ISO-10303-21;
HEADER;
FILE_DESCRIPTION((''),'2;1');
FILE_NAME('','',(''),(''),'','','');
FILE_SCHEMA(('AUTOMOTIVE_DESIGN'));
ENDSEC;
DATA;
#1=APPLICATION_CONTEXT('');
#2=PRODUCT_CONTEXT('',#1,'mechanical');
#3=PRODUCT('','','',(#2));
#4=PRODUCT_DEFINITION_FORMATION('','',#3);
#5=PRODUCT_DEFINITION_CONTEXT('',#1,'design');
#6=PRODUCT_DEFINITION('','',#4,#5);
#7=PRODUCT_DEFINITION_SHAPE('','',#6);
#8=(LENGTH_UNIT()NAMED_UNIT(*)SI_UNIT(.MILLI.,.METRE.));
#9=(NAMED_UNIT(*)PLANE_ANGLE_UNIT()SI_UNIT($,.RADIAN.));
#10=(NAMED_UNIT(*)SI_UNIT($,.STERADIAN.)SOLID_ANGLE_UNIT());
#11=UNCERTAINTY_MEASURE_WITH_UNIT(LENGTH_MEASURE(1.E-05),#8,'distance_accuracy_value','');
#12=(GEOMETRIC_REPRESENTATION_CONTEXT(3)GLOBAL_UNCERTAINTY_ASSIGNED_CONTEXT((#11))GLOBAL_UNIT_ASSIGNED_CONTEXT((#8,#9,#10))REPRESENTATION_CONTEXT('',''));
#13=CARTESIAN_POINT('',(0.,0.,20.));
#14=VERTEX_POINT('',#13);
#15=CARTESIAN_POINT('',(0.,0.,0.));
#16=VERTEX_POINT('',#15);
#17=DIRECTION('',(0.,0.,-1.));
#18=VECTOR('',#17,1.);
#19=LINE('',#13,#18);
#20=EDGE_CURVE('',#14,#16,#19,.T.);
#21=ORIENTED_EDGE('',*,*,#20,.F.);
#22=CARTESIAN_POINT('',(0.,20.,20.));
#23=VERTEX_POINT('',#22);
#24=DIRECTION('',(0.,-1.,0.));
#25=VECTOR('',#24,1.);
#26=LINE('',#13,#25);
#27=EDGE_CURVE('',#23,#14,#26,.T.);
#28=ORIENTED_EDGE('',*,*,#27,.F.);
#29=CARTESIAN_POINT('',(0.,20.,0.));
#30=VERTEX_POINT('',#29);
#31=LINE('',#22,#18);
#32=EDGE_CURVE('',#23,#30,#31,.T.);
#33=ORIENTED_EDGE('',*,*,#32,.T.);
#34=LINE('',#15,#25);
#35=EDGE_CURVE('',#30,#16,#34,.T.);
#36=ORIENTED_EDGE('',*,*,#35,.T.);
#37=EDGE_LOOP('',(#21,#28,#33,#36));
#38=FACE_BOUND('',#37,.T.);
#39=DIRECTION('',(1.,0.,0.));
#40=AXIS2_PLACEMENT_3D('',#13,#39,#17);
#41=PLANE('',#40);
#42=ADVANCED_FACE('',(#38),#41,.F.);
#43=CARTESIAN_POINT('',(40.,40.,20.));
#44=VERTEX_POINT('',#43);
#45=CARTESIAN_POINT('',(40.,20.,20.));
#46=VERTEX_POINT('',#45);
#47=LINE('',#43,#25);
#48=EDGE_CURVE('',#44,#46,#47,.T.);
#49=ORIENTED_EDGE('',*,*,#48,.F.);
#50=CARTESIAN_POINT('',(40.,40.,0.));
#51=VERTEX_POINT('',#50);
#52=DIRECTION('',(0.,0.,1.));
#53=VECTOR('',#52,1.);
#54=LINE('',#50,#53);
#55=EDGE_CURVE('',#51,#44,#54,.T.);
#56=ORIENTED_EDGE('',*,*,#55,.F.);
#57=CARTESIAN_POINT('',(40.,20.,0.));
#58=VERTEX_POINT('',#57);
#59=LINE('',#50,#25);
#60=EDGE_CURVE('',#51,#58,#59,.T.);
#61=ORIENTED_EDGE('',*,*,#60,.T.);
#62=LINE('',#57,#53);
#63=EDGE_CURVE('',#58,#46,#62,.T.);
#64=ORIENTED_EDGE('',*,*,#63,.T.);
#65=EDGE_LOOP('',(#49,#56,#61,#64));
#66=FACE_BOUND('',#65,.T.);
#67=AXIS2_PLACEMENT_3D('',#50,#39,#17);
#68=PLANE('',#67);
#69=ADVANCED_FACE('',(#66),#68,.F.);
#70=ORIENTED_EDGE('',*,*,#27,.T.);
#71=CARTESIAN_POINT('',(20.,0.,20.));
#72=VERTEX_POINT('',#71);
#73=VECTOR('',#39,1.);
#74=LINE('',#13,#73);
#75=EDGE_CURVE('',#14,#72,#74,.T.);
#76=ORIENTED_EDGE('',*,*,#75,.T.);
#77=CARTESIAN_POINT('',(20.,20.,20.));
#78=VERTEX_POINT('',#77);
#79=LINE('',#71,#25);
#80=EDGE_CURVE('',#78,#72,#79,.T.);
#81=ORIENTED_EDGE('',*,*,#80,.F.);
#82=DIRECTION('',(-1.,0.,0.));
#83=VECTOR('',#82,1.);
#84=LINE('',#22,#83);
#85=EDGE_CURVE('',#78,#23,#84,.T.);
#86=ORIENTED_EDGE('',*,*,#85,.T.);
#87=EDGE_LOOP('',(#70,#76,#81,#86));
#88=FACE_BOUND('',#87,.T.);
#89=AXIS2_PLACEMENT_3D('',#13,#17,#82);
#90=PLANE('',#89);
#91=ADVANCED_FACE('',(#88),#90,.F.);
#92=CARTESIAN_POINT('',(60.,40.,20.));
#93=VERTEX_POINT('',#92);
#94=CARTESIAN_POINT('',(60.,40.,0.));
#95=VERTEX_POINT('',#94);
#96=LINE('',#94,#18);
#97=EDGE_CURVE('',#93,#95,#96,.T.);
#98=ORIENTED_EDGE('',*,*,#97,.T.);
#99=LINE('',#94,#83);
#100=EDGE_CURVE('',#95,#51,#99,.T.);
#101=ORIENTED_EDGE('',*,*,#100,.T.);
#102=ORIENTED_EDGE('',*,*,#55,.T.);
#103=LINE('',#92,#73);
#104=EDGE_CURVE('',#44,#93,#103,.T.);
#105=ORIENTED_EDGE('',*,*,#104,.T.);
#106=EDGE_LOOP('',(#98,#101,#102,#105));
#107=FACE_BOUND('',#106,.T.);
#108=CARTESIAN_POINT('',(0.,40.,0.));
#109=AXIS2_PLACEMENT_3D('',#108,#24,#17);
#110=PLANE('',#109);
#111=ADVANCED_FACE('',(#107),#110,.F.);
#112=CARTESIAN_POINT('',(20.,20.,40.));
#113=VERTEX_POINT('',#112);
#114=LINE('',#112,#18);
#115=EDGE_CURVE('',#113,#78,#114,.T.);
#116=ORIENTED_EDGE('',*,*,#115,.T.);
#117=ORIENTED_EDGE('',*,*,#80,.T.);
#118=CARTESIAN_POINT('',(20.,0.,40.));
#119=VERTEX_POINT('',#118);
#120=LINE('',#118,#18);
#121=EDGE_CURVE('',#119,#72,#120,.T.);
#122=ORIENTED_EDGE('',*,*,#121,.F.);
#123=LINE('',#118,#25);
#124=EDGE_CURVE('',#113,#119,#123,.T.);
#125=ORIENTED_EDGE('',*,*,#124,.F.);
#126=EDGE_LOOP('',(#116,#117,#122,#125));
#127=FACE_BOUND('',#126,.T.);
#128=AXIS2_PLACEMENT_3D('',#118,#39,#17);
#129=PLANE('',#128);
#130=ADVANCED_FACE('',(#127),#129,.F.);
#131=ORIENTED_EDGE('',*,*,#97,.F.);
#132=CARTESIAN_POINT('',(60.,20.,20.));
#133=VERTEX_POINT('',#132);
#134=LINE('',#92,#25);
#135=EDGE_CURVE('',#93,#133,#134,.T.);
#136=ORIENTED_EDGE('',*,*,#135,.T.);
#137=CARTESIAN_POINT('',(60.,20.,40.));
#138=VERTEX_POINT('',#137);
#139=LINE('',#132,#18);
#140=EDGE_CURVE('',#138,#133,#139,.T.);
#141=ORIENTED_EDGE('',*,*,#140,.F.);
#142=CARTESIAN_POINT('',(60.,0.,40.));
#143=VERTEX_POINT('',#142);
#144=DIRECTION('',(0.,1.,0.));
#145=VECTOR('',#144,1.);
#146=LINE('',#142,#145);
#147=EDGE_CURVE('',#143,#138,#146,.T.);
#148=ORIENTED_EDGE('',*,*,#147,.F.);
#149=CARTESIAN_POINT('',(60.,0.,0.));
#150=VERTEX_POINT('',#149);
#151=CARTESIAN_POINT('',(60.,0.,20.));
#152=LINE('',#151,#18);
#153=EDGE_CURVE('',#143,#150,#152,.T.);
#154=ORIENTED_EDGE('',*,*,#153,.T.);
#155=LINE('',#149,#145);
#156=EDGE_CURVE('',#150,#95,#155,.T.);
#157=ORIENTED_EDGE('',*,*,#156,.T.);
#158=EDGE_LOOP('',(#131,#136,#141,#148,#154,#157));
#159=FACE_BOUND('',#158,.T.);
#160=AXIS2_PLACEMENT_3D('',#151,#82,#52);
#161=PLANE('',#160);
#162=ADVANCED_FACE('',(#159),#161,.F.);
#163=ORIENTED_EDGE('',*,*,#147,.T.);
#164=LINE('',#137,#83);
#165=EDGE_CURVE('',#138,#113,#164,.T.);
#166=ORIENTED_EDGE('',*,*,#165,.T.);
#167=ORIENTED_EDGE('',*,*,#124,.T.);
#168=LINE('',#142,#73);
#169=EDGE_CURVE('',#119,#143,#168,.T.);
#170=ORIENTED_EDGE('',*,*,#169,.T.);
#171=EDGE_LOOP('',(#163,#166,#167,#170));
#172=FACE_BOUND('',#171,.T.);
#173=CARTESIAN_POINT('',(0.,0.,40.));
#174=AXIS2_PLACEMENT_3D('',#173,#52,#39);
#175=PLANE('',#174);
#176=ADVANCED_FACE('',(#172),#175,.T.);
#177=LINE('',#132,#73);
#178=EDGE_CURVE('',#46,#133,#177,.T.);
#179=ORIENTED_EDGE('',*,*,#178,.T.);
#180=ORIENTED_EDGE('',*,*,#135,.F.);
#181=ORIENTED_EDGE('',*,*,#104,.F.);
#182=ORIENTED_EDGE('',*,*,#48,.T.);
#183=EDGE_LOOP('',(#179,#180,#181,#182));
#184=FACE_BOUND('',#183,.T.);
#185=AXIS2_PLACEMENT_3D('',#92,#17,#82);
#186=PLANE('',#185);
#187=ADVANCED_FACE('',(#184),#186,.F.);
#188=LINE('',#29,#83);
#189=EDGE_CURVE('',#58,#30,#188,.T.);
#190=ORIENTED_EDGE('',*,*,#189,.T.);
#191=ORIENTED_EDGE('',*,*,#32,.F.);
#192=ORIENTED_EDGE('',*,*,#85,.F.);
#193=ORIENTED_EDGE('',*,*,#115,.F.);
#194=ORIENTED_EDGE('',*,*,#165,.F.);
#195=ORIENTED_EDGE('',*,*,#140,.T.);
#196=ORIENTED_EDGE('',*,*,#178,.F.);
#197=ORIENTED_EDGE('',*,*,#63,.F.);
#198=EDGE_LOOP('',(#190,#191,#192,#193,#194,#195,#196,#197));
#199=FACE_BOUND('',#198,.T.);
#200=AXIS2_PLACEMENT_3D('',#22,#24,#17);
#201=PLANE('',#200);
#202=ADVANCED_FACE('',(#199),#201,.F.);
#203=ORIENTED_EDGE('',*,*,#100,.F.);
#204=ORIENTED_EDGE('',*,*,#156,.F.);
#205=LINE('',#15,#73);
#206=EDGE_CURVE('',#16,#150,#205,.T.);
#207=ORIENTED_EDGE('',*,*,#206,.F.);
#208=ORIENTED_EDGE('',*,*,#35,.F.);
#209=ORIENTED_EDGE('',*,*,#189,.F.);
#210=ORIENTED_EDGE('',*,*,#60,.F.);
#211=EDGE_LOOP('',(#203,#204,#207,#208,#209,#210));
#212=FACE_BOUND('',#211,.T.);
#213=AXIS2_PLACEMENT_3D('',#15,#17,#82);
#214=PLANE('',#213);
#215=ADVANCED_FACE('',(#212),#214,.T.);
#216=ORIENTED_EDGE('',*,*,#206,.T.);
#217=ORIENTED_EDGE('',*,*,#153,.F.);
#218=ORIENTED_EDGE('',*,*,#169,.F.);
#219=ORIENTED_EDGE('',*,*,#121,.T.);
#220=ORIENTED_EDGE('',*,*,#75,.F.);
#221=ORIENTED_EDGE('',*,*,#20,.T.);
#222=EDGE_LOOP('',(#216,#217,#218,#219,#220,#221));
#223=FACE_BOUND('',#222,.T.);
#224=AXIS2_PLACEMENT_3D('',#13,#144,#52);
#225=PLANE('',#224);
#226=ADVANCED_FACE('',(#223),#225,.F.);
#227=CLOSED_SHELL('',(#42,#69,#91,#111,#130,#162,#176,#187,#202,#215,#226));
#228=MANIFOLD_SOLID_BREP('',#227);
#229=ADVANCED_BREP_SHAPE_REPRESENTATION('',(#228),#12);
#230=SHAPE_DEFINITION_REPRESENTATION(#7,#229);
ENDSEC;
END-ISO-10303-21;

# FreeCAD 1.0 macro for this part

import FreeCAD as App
import Part
import Sketcher

doc = App.newDocument("Part")
params = doc.addObject("Spreadsheet::Sheet", "Params")
for row, (alias, value) in enumerate([
    ("sketch1_width", "60 mm"),
    ("sketch1_height", "20 mm"),
    ("pad1_length", "20 mm"),
    ("sketch2_width", "40 mm"),
    ("sketch2_height", "20 mm"),
    ("pad2_length", "20 mm"),
    ("sketch3_width", "20 mm"),
    ("pad3_length", "20 mm"),
], start=1):
    params.set(f"A{row}", alias)
    params.set(f"B{row}", "=" + value)
    params.setAlias(f"B{row}", alias)

body = doc.addObject("PartDesign::Body", "Body")

# Sketch on XY plane
sketch1 = doc.addObject("Sketcher::SketchObject", "Sketch")
body.addObject(sketch1)
sketch1.AttachmentSupport = (doc.XY_Plane, [""])
sketch1.MapMode = "FlatFace"
sketch1.addGeometry(Part.LineSegment(App.Vector(0, 20, 0), App.Vector(0, 0, 0)), False)
sketch1.addGeometry(Part.LineSegment(App.Vector(0, 0, 0), App.Vector(60, 0, 0)), False)
sketch1.addGeometry(Part.LineSegment(App.Vector(60, 0, 0), App.Vector(60, 20, 0)), False)
sketch1.addGeometry(Part.LineSegment(App.Vector(60, 20, 0), App.Vector(0, 20, 0)), False)
sketch1.addConstraint(Sketcher.Constraint("Coincident", 0, 2, 1, 1))
sketch1.addConstraint(Sketcher.Constraint("Coincident", 1, 2, 2, 1))
sketch1.addConstraint(Sketcher.Constraint("Coincident", 2, 2, 3, 1))
sketch1.addConstraint(Sketcher.Constraint("Coincident", 3, 2, 0, 1))
sketch1.addConstraint(Sketcher.Constraint("Vertical", 0))
sketch1.addConstraint(Sketcher.Constraint("Horizontal", 1))
sketch1.addConstraint(Sketcher.Constraint("Vertical", 2))
sketch1.addConstraint(Sketcher.Constraint("Horizontal", 3))
sketch1.addConstraint(Sketcher.Constraint("Coincident", 0, 2, -1, 1))
sketch1.addConstraint(Sketcher.Constraint("DistanceX", 1, 1, 1, 2, 60.0))
sketch1.addConstraint(Sketcher.Constraint("DistanceY", 0, 2, 0, 1, 20.0))
sketch1.setExpression("Constraints[9]", "Params.sketch1_width")
sketch1.setExpression("Constraints[10]", "Params.sketch1_height")
pad1 = doc.addObject("PartDesign::Pad", "Pad")
body.addObject(pad1)
pad1.Profile = sketch1
pad1.setExpression("Length", "Params.pad1_length")

# Sketch on XY plane
sketch2 = doc.addObject("Sketcher::SketchObject", "Sketch001")
body.addObject(sketch2)
sketch2.AttachmentSupport = (doc.XY_Plane, [""])
sketch2.MapMode = "FlatFace"
sketch2.AttachmentOffset = App.Placement(App.Vector(0, 0, 20), App.Rotation())
sketch2.addGeometry(Part.LineSegment(App.Vector(20, 20, 0), App.Vector(20, 0, 0)), False)
sketch2.addGeometry(Part.LineSegment(App.Vector(20, 0, 0), App.Vector(60, 0, 0)), False)
sketch2.addGeometry(Part.LineSegment(App.Vector(60, 0, 0), App.Vector(60, 20, 0)), False)
sketch2.addGeometry(Part.LineSegment(App.Vector(60, 20, 0), App.Vector(20, 20, 0)), False)
sketch2.addConstraint(Sketcher.Constraint("Coincident", 0, 2, 1, 1))
sketch2.addConstraint(Sketcher.Constraint("Coincident", 1, 2, 2, 1))
sketch2.addConstraint(Sketcher.Constraint("Coincident", 2, 2, 3, 1))
sketch2.addConstraint(Sketcher.Constraint("Coincident", 3, 2, 0, 1))
sketch2.addConstraint(Sketcher.Constraint("Vertical", 0))
sketch2.addConstraint(Sketcher.Constraint("Horizontal", 1))
sketch2.addConstraint(Sketcher.Constraint("Vertical", 2))
sketch2.addConstraint(Sketcher.Constraint("Horizontal", 3))
sketch2.addConstraint(Sketcher.Constraint("PointOnObject", 0, 2, -1))
sketch2.addConstraint(Sketcher.Constraint("DistanceX", 1, 1, 1, 2, 40.0))
sketch2.addConstraint(Sketcher.Constraint("DistanceY", 0, 2, 0, 1, 20.0))
sketch2.addConstraint(Sketcher.Constraint("DistanceX", -1, 1, 0, 2, 20.0))
sketch2.setExpression("Constraints[9]", "Params.sketch2_width")
sketch2.setExpression("Constraints[10]", "Params.sketch2_height")
pad2 = doc.addObject("PartDesign::Pad", "Pad001")
body.addObject(pad2)
pad2.Profile = sketch2
pad2.setExpression("Length", "Params.pad2_length")

# Sketch on XZ plane
sketch3 = doc.addObject("Sketcher::SketchObject", "Sketch002")
body.addObject(sketch3)
sketch3.AttachmentSupport = (doc.XZ_Plane, [""])
sketch3.MapMode = "FlatFace"
sketch3.AttachmentOffset = App.Placement(App.Vector(0, 0, -20), App.Rotation())
sketch3.addGeometry(Part.LineSegment(App.Vector(40, 0, 0), App.Vector(40, 20, 0)), False)
sketch3.addGeometry(Part.LineSegment(App.Vector(40, 20, 0), App.Vector(60, 20, 0)), False)
sketch3.addGeometry(Part.LineSegment(App.Vector(60, 20, 0), App.Vector(60, 0, 0)), False)
sketch3.addGeometry(Part.LineSegment(App.Vector(60, 0, 0), App.Vector(40, 0, 0)), False)
sketch3.addConstraint(Sketcher.Constraint("Coincident", 0, 2, 1, 1))
sketch3.addConstraint(Sketcher.Constraint("Coincident", 1, 2, 2, 1))
sketch3.addConstraint(Sketcher.Constraint("Coincident", 2, 2, 3, 1))
sketch3.addConstraint(Sketcher.Constraint("Coincident", 3, 2, 0, 1))
sketch3.addConstraint(Sketcher.Constraint("Vertical", 0))
sketch3.addConstraint(Sketcher.Constraint("Horizontal", 1))
sketch3.addConstraint(Sketcher.Constraint("Vertical", 2))
sketch3.addConstraint(Sketcher.Constraint("Horizontal", 3))
sketch3.addConstraint(Sketcher.Constraint("PointOnObject", 2, 2, -1))
sketch3.addConstraint(Sketcher.Constraint("Equal", 3, 0))
sketch3.addConstraint(Sketcher.Constraint("DistanceX", 1, 1, 1, 2, 20.0))
sketch3.addConstraint(Sketcher.Constraint("DistanceX", -1, 1, 0, 2, 40.0))
sketch3.setExpression("Constraints[10]", "Params.sketch3_width")
pad3 = doc.addObject("PartDesign::Pad", "Pad002")
body.addObject(pad3)
pad3.Profile = sketch3
pad3.setExpression("Length", "Params.pad3_length")
pad3.Reversed = True

doc.recompute()
